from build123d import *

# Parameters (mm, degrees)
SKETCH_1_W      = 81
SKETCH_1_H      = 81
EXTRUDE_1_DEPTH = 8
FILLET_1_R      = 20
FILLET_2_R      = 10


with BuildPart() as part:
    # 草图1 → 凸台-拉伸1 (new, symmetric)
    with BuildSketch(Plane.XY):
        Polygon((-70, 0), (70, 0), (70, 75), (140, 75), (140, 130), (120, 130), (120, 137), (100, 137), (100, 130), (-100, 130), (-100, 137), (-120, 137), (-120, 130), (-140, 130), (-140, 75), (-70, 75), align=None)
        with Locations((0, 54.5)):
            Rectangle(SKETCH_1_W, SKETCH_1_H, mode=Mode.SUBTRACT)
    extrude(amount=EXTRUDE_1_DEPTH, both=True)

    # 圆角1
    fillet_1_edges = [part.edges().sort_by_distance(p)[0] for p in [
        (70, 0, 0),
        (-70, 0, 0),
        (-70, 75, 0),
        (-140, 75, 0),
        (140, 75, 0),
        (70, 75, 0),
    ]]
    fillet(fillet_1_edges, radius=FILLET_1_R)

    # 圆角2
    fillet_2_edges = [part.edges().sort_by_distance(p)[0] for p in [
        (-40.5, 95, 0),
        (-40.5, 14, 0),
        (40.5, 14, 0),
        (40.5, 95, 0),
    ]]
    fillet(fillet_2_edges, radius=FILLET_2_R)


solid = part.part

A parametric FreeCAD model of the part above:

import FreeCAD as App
import Part
import Sketcher

V = App.Vector
Q = App.Units.Quantity


def edges_at(feature, points):
    """Names of the edges that pass closest to the given points."""
    edges = feature.Shape.Edges
    near = lambda p: min(range(len(edges)), key=lambda i: edges[i].distToShape(Part.Vertex(*p))[0])
    return sorted({f"Edge{near(p) + 1}" for p in points})

doc = App.newDocument("Part")
body = doc.addObject("PartDesign::Body", "Body")

sketch1 = body.newObject("Sketcher::SketchObject", "Sketch")
sketch1.AttachmentSupport = (doc.getObject("XY_Plane"), [""])
sketch1.MapMode = "FlatFace"
sketch1.addGeometry([
    Part.LineSegment(V(-70, 0, 0), V(70, 0, 0)),
    Part.LineSegment(V(70, 0, 0), V(70, 75, 0)),
    Part.LineSegment(V(70, 75, 0), V(140, 75, 0)),
    Part.LineSegment(V(140, 75, 0), V(140, 130, 0)),
    Part.LineSegment(V(140, 130, 0), V(120, 130, 0)),
    Part.LineSegment(V(120, 130, 0), V(120, 137, 0)),
    Part.LineSegment(V(120, 137, 0), V(100, 137, 0)),
    Part.LineSegment(V(100, 137, 0), V(100, 130, 0)),
    Part.LineSegment(V(100, 130, 0), V(-100, 130, 0)),
    Part.LineSegment(V(-100, 130, 0), V(-100, 137, 0)),
    Part.LineSegment(V(-100, 137, 0), V(-120, 137, 0)),
    Part.LineSegment(V(-120, 137, 0), V(-120, 130, 0)),
    Part.LineSegment(V(-120, 130, 0), V(-140, 130, 0)),
    Part.LineSegment(V(-140, 130, 0), V(-140, 75, 0)),
    Part.LineSegment(V(-140, 75, 0), V(-70, 75, 0)),
    Part.LineSegment(V(-70, 75, 0), V(-70, 0, 0)),
    Part.LineSegment(V(40, 14, 0), V(-40, 14, 0)),
    Part.LineSegment(V(-40, 14, 0), V(-40, 95, 0)),
    Part.LineSegment(V(-40, 95, 0), V(40, 95, 0)),
    Part.LineSegment(V(40, 95, 0), V(40, 14, 0)),
], False)
sketch1.addConstraint([
    Sketcher.Constraint("Coincident", 0, 2, 1, 1),
    Sketcher.Constraint("Coincident", 1, 2, 2, 1),
    Sketcher.Constraint("Coincident", 2, 2, 3, 1),
    Sketcher.Constraint("Coincident", 3, 2, 4, 1),
    Sketcher.Constraint("Coincident", 4, 2, 5, 1),
    Sketcher.Constraint("Coincident", 5, 2, 6, 1),
    Sketcher.Constraint("Coincident", 6, 2, 7, 1),
    Sketcher.Constraint("Coincident", 7, 2, 8, 1),
    Sketcher.Constraint("Coincident", 8, 2, 9, 1),
    Sketcher.Constraint("Coincident", 9, 2, 10, 1),
    Sketcher.Constraint("Coincident", 10, 2, 11, 1),
    Sketcher.Constraint("Coincident", 11, 2, 12, 1),
    Sketcher.Constraint("Coincident", 12, 2, 13, 1),
    Sketcher.Constraint("Coincident", 13, 2, 14, 1),
    Sketcher.Constraint("Coincident", 14, 2, 15, 1),
    Sketcher.Constraint("Coincident", 15, 2, 0, 1),
    Sketcher.Constraint("Coincident", 16, 2, 17, 1),
    Sketcher.Constraint("Coincident", 17, 2, 18, 1),
    Sketcher.Constraint("Coincident", 18, 2, 19, 1),
    Sketcher.Constraint("Coincident", 19, 2, 16, 1),
    Sketcher.Constraint("Horizontal", 0),
    Sketcher.Constraint("Vertical", 1),
    Sketcher.Constraint("Horizontal", 2),
    Sketcher.Constraint("Vertical", 3),
    Sketcher.Constraint("Horizontal", 4),
    Sketcher.Constraint("Vertical", 5),
    Sketcher.Constraint("Horizontal", 6),
    Sketcher.Constraint("Vertical", 7),
    Sketcher.Constraint("Horizontal", 8),
    Sketcher.Constraint("Vertical", 9),
    Sketcher.Constraint("Horizontal", 10),
    Sketcher.Constraint("Vertical", 11),
    Sketcher.Constraint("Horizontal", 12),
    Sketcher.Constraint("Vertical", 13),
    Sketcher.Constraint("Horizontal", 14),
    Sketcher.Constraint("Vertical", 15),
    Sketcher.Constraint("Horizontal", 16),
    Sketcher.Constraint("Vertical", 17),
    Sketcher.Constraint("Horizontal", 18),
    Sketcher.Constraint("Vertical", 19),
    Sketcher.Constraint("Symmetric", 0, 2, 15, 2, -1, 1),
    Sketcher.Constraint("Symmetric", 6, 2, 9, 2, -2),
    Sketcher.Constraint("Symmetric", 4, 2, 11, 2, -2),
    Sketcher.Constraint("Symmetric", 2, 2, 13, 2, -2),
    Sketcher.Constraint("Horizontal", 4, 2, 7, 2),
    Sketcher.Constraint("Equal", 4, 6),
    Sketcher.Constraint("Equal", 18, 17),
    Sketcher.Constraint("DistanceX", 0, 1, 0, 2, Q("140 mm")),
    Sketcher.Constraint("DistanceX", 2, 1, 2, 2, Q("70 mm")),
    Sketcher.Constraint("DistanceX", 4, 2, 4, 1, Q("20 mm")),
    Sketcher.Constraint("DistanceX", 16, 2, 16, 1, Q("81 mm")),
    Sketcher.Constraint("DistanceY", 1, 1, 1, 2, Q("75 mm")),
    Sketcher.Constraint("DistanceY", 3, 1, 3, 2, Q("55 mm")),
    Sketcher.Constraint("DistanceY", 5, 1, 5, 2, Q("7 mm")),
    Sketcher.Constraint("DistanceY", -1, 1, 16, 2, Q("14 mm")),
    Sketcher.Constraint("DistanceX", 16, 2, -1, 1, Q("40.5 mm")),
])
pad1 = body.newObject("PartDesign::Pad", "Pad")
pad1.Profile = sketch1
pad1.Length = 16
pad1.Midplane = True
doc.recompute()

fillet = body.newObject("PartDesign::Fillet", "Fillet")
fillet.Base = (pad1, edges_at(pad1, [
    (70, 0, 0),
    (-70, 0, 0),
    (-70, 75, 0),
    (-140, 75, 0),
    (140, 75, 0),
    (70, 75, 0),
]))
fillet.Radius = 20
doc.recompute()

fillet2 = body.newObject("PartDesign::Fillet", "Fillet001")
fillet2.Base = (fillet, edges_at(fillet, [
    (-40.5, 95, 0),
    (-40.5, 14, 0),
    (40.5, 14, 0),
    (40.5, 95, 0),
]))
fillet2.Radius = 10

doc.recompute()
